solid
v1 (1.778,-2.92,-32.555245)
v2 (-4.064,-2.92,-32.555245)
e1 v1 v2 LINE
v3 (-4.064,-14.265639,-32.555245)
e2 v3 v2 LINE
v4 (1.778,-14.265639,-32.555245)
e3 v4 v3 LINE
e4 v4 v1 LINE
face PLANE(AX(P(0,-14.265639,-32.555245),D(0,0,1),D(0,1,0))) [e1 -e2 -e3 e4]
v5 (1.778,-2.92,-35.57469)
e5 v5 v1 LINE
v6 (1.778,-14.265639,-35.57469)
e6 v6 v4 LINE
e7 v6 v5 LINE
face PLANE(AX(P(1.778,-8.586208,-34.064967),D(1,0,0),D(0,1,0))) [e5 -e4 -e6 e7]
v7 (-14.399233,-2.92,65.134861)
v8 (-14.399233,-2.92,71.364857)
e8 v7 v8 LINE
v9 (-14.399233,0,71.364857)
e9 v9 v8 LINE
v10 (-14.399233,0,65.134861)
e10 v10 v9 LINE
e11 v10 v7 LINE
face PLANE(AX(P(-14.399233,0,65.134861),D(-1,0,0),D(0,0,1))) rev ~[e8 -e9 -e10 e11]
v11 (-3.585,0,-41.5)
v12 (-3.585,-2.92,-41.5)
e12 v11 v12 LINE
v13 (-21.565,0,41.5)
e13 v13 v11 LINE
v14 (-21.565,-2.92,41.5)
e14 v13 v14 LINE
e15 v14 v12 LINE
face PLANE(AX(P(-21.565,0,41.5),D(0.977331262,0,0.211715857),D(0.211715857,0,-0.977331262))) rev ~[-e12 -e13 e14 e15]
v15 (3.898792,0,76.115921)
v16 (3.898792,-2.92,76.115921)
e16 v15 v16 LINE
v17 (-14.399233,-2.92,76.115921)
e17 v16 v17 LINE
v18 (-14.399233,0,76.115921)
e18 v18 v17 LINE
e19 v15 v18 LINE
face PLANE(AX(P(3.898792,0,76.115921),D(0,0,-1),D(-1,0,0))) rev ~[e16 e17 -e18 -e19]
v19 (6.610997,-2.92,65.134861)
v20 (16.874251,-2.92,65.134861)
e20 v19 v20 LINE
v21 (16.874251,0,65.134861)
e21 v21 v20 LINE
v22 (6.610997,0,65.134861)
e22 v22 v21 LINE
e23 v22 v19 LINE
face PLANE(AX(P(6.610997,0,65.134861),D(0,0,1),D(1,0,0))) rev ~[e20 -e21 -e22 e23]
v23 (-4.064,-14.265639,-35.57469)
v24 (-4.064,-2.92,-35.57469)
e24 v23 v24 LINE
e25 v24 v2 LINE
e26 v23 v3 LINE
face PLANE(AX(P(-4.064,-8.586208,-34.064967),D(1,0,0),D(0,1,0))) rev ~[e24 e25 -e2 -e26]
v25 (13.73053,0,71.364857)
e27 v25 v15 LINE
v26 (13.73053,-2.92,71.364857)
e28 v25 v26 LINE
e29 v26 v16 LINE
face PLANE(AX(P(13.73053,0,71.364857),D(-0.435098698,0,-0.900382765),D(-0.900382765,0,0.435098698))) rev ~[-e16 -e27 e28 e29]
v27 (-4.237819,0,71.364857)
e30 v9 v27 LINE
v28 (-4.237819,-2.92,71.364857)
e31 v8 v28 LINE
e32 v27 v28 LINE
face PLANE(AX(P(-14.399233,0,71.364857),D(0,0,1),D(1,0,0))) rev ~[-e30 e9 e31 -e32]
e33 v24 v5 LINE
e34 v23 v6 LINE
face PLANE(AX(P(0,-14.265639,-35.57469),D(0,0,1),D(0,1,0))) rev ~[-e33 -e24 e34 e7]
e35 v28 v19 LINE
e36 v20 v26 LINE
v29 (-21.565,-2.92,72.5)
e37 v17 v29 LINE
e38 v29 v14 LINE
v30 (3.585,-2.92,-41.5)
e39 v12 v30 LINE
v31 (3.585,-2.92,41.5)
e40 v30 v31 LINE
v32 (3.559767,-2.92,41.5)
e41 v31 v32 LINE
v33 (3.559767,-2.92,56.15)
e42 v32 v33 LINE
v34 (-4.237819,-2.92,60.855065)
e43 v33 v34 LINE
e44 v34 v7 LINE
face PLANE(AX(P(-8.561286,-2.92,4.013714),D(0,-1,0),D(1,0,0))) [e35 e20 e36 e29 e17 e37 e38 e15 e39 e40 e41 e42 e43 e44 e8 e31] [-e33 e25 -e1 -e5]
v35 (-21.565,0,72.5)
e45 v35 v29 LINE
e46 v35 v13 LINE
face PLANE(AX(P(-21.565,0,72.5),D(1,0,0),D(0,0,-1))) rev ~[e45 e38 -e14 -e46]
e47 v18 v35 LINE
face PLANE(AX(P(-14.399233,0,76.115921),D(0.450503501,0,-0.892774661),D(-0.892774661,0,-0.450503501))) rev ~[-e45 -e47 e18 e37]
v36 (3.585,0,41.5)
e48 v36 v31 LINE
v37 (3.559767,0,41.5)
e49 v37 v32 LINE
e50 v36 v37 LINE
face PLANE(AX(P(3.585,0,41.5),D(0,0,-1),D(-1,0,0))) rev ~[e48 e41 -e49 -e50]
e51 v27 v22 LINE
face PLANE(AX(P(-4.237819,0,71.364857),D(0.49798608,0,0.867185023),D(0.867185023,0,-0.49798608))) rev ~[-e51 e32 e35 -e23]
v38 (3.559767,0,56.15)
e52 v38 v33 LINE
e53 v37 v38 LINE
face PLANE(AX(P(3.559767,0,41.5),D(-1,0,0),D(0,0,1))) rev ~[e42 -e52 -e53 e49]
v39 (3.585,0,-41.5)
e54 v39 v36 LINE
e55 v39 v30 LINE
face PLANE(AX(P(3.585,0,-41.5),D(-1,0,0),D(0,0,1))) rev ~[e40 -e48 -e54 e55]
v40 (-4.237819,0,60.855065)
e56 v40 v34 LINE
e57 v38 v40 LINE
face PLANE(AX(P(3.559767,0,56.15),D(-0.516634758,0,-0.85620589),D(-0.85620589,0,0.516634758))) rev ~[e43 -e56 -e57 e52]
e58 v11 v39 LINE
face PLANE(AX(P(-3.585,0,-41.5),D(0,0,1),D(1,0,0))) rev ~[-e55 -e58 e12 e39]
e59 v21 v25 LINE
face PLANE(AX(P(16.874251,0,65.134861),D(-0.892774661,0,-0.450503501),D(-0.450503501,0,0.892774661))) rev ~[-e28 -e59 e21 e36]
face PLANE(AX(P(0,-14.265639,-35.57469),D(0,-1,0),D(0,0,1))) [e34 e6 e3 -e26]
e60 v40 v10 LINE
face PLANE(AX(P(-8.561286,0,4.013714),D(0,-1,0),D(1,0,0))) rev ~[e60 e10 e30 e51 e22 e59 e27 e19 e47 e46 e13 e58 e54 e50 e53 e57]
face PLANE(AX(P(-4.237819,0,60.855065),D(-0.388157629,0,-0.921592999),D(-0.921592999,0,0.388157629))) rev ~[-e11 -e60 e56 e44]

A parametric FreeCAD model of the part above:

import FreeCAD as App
import Part
import Sketcher

V = App.Vector
Q = App.Units.Quantity

doc = App.newDocument("Part")
body = doc.addObject("PartDesign::Body", "Body")

sketch1 = body.newObject("Sketcher::SketchObject", "Sketch")
sketch1.AttachmentSupport = (doc.getObject("XZ_Plane"), [""])
sketch1.MapMode = "FlatFace"
sketch1.addGeometry(Part.LineSegment(V(-21.565, 41.5, 0), V(-3.585, -41.5, 0)), False)
sketch1.addGeometry(Part.LineSegment(V(-3.585, -41.5, 0), V(3.585, -41.5, 0)), False)
sketch1.addGeometry(Part.LineSegment(V(3.585, -41.5, 0), V(3.585, 41.5, 0)), False)
sketch1.addGeometry(Part.LineSegment(V(3.585, 41.5, 0), V(3.559767, 41.5, 0)), False)
sketch1.addGeometry(Part.LineSegment(V(3.559767, 41.5, 0), V(3.559767, 56.15, 0)), False)
sketch1.addGeometry(Part.LineSegment(V(3.559767, 56.15, 0), V(-4.237819, 60.855065, 0)), False)
sketch1.addGeometry(Part.LineSegment(V(-4.237819, 60.855065, 0), V(-14.399233, 65.134861, 0)), False)
sketch1.addGeometry(Part.LineSegment(V(-14.399233, 65.134861, 0), V(-14.399233, 71.364857, 0)), False)
sketch1.addGeometry(Part.LineSegment(V(-14.399233, 71.364857, 0), V(-4.237819, 71.364857, 0)), False)
sketch1.addGeometry(Part.LineSegment(V(-4.237819, 71.364857, 0), V(6.610997, 65.134861, 0)), False)
sketch1.addGeometry(Part.LineSegment(V(6.610997, 65.134861, 0), V(16.874251, 65.134861, 0)), False)
sketch1.addGeometry(Part.LineSegment(V(16.874251, 65.134861, 0), V(13.73053, 71.364857, 0)), False)
sketch1.addGeometry(Part.LineSegment(V(13.73053, 71.364857, 0), V(3.898792, 76.115921, 0)), False)
sketch1.addGeometry(Part.LineSegment(V(3.898792, 76.115921, 0), V(-14.399233, 76.115921, 0)), False)
sketch1.addGeometry(Part.LineSegment(V(-14.399233, 76.115921, 0), V(-21.565, 72.5, 0)), False)
sketch1.addGeometry(Part.LineSegment(V(-21.565, 72.5, 0), V(-21.565, 41.5, 0)), False)
sketch1.addConstraint(Sketcher.Constraint("Coincident", 0, 2, 1, 1))
sketch1.addConstraint(Sketcher.Constraint("Coincident", 1, 2, 2, 1))
sketch1.addConstraint(Sketcher.Constraint("Coincident", 2, 2, 3, 1))
sketch1.addConstraint(Sketcher.Constraint("Coincident", 3, 2, 4, 1))
sketch1.addConstraint(Sketcher.Constraint("Coincident", 4, 2, 5, 1))
sketch1.addConstraint(Sketcher.Constraint("Coincident", 5, 2, 6, 1))
sketch1.addConstraint(Sketcher.Constraint("Coincident", 6, 2, 7, 1))
sketch1.addConstraint(Sketcher.Constraint("Coincident", 7, 2, 8, 1))
sketch1.addConstraint(Sketcher.Constraint("Coincident", 8, 2, 9, 1))
sketch1.addConstraint(Sketcher.Constraint("Coincident", 9, 2, 10, 1))
sketch1.addConstraint(Sketcher.Constraint("Coincident", 10, 2, 11, 1))
sketch1.addConstraint(Sketcher.Constraint("Coincident", 11, 2, 12, 1))
sketch1.addConstraint(Sketcher.Constraint("Coincident", 12, 2, 13, 1))
sketch1.addConstraint(Sketcher.Constraint("Coincident", 13, 2, 14, 1))
sketch1.addConstraint(Sketcher.Constraint("Coincident", 14, 2, 15, 1))
sketch1.addConstraint(Sketcher.Constraint("Coincident", 15, 2, 0, 1))
sketch1.addConstraint(Sketcher.Constraint("Horizontal", 1))
sketch1.addConstraint(Sketcher.Constraint("Vertical", 2))
sketch1.addConstraint(Sketcher.Constraint("Horizontal", 3))
sketch1.addConstraint(Sketcher.Constraint("Vertical", 4))
sketch1.addConstraint(Sketcher.Constraint("Vertical", 7))
sketch1.addConstraint(Sketcher.Constraint("Horizontal", 8))
sketch1.addConstraint(Sketcher.Constraint("Horizontal", 10))
sketch1.addConstraint(Sketcher.Constraint("Horizontal", 13))
sketch1.addConstraint(Sketcher.Constraint("Vertical", 15))
sketch1.addConstraint(Sketcher.Constraint("Symmetric", 0, 2, 2, 2, -1, 1))
sketch1.addConstraint(Sketcher.Constraint("Perpendicular", 11, 14))
sketch1.addConstraint(Sketcher.Constraint("Horizontal", 6, 2, 9, 2))
sketch1.addConstraint(Sketcher.Constraint("Horizontal", 8, 2, 11, 2))
sketch1.addConstraint(Sketcher.Constraint("Horizontal", 3, 2, 15, 2))
sketch1.addConstraint(Sketcher.Constraint("Vertical", 5, 2, 8, 2))
sketch1.addConstraint(Sketcher.Constraint("Vertical", 7, 2, 13, 2))
sketch1.addConstraint(Sketcher.Constraint("DistanceY", 2, 1, 2, 2, Q("83 mm")))
sketch1.addConstraint(Sketcher.Constraint("DistanceY", 15, 2, 15, 1, Q("31 mm")))
sketch1.addConstraint(Sketcher.Constraint("DistanceX", 1, 1, 1, 2, Q("7.17 mm")))
sketch1.addConstraint(Sketcher.Constraint("DistanceY", 4, 1, 4, 2, Q("14.65 mm")))
sketch1.addConstraint(Sketcher.Constraint("DistanceX", 15, 2, 2, 2, Q("25.15 mm")))
sketch1.addConstraint(Sketcher.Constraint("DistanceX", 6, 2, 4, 2, Q("17.959 mm")))
sketch1.addConstraint(Sketcher.Constraint("Distance", 14, Q("8.0264 mm")))
sketch1.addConstraint(Sketcher.Constraint("Distance", 5, Q("9.107139 mm")))
sketch1.addConstraint(Sketcher.Constraint("Distance", 11, Q("6.97824 mm")))
sketch1.addConstraint(Sketcher.Constraint("Distance", 12, Q("10.919509 mm")))
sketch1.addConstraint(Sketcher.Constraint("DistanceX", 3, 2, 3, 1, Q("0.025233 mm")))
sketch1.addConstraint(Sketcher.Constraint("DistanceX", 8, 1, 8, 2, Q("10.161414 mm")))
sketch1.addConstraint(Sketcher.Constraint("DistanceX", 10, 1, 10, 2, Q("10.263254 mm")))
sketch1.addConstraint(Sketcher.Constraint("DistanceX", 13, 2, 13, 1, Q("18.298026 mm")))
sketch1.addConstraint(Sketcher.Constraint("DistanceY", -1, 1, 6, 2, Q("65.134861 mm")))
pad1 = body.newObject("PartDesign::Pad", "Pad")
pad1.Profile = sketch1
pad1.Length = 2.92

sketch2 = body.newObject("Sketcher::SketchObject", "Sketch001")
sketch2.AttachmentSupport = (doc.getObject("YZ_Plane"), [""])
sketch2.MapMode = "FlatFace"
sketch2.addGeometry(Part.LineSegment(V(-14.265639, -32.555245, 0), V(-14.265639, -35.57469, 0)), False)
sketch2.addGeometry(Part.LineSegment(V(-14.265639, -35.57469, 0), V(-2.906778, -35.57469, 0)), False)
sketch2.addGeometry(Part.LineSegment(V(-2.906778, -35.57469, 0), V(-2.906778, -32.555245, 0)), False)
sketch2.addGeometry(Part.LineSegment(V(-2.906778, -32.555245, 0), V(-14.265639, -32.555245, 0)), False)
sketch2.addConstraint(Sketcher.Constraint("Coincident", 0, 2, 1, 1))
sketch2.addConstraint(Sketcher.Constraint("Coincident", 1, 2, 2, 1))
sketch2.addConstraint(Sketcher.Constraint("Coincident", 2, 2, 3, 1))
sketch2.addConstraint(Sketcher.Constraint("Coincident", 3, 2, 0, 1))
sketch2.addConstraint(Sketcher.Constraint("Vertical", 0))
sketch2.addConstraint(Sketcher.Constraint("Horizontal", 1))
sketch2.addConstraint(Sketcher.Constraint("Vertical", 2))
sketch2.addConstraint(Sketcher.Constraint("Horizontal", 3))
sketch2.addConstraint(Sketcher.Constraint("DistanceX", 1, 1, 1, 2, Q("11.358861 mm")))
sketch2.addConstraint(Sketcher.Constraint("DistanceY", 0, 2, 0, 1, Q("3.019445 mm")))
sketch2.addConstraint(Sketcher.Constraint("DistanceX", 0, 2, -1, 1, Q("14.265639 mm")))
sketch2.addConstraint(Sketcher.Constraint("DistanceY", 0, 2, -1, 1, Q("35.57469 mm")))
pad2 = body.newObject("PartDesign::Pad", "Pad001")
pad2.Profile = sketch2
pad2.Type = "TwoLengths"
pad2.Length = 4.064
pad2.Length2 = 1.778
pad2.Reversed = True

doc.recompute()
